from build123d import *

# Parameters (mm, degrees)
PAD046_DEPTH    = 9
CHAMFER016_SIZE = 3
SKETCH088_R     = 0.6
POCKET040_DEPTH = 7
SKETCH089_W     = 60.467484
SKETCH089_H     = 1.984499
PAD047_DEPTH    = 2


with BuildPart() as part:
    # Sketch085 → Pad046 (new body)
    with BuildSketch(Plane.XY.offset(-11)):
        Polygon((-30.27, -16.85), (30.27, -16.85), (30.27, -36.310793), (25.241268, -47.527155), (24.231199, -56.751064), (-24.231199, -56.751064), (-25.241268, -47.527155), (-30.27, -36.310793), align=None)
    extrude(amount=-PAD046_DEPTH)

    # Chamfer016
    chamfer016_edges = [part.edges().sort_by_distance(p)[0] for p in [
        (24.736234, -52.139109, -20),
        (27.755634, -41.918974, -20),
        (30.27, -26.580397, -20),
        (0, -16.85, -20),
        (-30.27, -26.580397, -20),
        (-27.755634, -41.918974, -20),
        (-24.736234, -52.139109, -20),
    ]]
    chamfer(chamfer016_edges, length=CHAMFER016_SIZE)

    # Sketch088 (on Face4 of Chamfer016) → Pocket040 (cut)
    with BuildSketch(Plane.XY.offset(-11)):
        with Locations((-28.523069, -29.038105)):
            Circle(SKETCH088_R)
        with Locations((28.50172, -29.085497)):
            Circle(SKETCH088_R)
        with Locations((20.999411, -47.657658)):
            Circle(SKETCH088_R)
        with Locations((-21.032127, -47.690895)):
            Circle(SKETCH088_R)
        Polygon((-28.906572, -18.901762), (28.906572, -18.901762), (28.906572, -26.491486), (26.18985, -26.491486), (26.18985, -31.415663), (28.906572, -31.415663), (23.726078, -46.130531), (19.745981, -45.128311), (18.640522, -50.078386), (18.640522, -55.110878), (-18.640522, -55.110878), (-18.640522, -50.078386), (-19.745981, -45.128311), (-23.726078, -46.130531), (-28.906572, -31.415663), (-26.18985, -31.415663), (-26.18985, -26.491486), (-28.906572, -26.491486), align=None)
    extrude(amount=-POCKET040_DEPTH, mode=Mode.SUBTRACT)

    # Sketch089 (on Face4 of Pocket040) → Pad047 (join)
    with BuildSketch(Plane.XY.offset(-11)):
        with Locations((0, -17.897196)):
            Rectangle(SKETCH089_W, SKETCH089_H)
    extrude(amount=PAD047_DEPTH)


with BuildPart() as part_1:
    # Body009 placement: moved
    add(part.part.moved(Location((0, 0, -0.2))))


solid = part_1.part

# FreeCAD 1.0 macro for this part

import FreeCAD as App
import Part
import Sketcher

V = App.Vector
Q = App.Units.Quantity


def edges_at(feature, points):
    """Names of the edges that pass closest to the given points."""
    edges = feature.Shape.Edges
    near = lambda p: min(range(len(edges)), key=lambda i: edges[i].distToShape(Part.Vertex(*p))[0])
    return sorted({f"Edge{near(p) + 1}" for p in points})


def add_polygon(sketch, points):
    """Adds a closed chain of lines whose ends are joined by coincident constraints."""
    first, n = sketch.GeometryCount, len(points)
    for a, b in zip(points, points[1:] + points[:1]):
        sketch.addGeometry(Part.LineSegment(App.Vector(*a, 0), App.Vector(*b, 0)), False)
    for i in range(n):
        sketch.addConstraint(Sketcher.Constraint("Coincident", first + i, 2, first + (i + 1) % n, 1))

doc = App.newDocument("Part")
body = doc.addObject("PartDesign::Body", "Body")

sketch1 = body.newObject("Sketcher::SketchObject", "Sketch")
sketch1.AttachmentSupport = (doc.getObject("XY_Plane"), [""])
sketch1.MapMode = "FlatFace"
sketch1.AttachmentOffset = App.Placement(V(0, 0, -11), App.Rotation())
add_polygon(sketch1, [(30, -17), (-30, -17), (-30, -36), (-25, -48), (-24, -57), (24, -57), (25, -48), (30, -36)])
sketch1.addConstraint(Sketcher.Constraint("Horizontal", 0))
sketch1.addConstraint(Sketcher.Constraint("Vertical", 1))
sketch1.addConstraint(Sketcher.Constraint("Horizontal", 4))
sketch1.addConstraint(Sketcher.Constraint("Vertical", 7))
sketch1.addConstraint(Sketcher.Constraint("Symmetric", 2, 2, 5, 2, -2))
sketch1.addConstraint(Sketcher.Constraint("Symmetric", 1, 2, 6, 2, -2))
sketch1.addConstraint(Sketcher.Constraint("Equal", 3, 5))
sketch1.addConstraint(Sketcher.Constraint("DistanceX", 0, 2, 0, 1, Q("60.54 mm")))
sketch1.addConstraint(Sketcher.Constraint("DistanceY", 0, 2, -1, 1, Q("16.85 mm")))
sketch1.addConstraint(Sketcher.Constraint("DistanceX", 3, 2, -1, 1, Q("24.231199 mm")))
sketch1.addConstraint(Sketcher.Constraint("Distance", 3, Q("9.279048 mm")))
sketch1.addConstraint(Sketcher.Constraint("DistanceY", 1, 2, 1, 1, Q("19.460793 mm")))
sketch1.addConstraint(Sketcher.Constraint("DistanceX", 2, 2, -1, 1, Q("25.241268 mm")))
sketch1.addConstraint(Sketcher.Constraint("DistanceY", 3, 2, 1, 2, Q("20.440271 mm")))
pad1 = body.newObject("PartDesign::Pad", "Pad")
pad1.Profile = sketch1
pad1.Length = 9
pad1.Reversed = True
doc.recompute()

chamfer = body.newObject("PartDesign::Chamfer", "Chamfer")
chamfer.Base = (pad1, edges_at(pad1, [
    (24.736, -52.139, -20),
    (27.756, -41.919, -20),
    (30.27, -26.58, -20),
    (0, -16.85, -20),
    (-30.27, -26.58, -20),
    (-27.756, -41.919, -20),
    (-24.736, -52.139, -20),
]))
chamfer.Size = 3

sketch2 = body.newObject("Sketcher::SketchObject", "Sketch001")
sketch2.AttachmentSupport = (doc.getObject("XY_Plane"), [""])
sketch2.MapMode = "FlatFace"
sketch2.AttachmentOffset = App.Placement(V(0, 0, -11), App.Rotation())
sketch2.addGeometry(Part.Circle(V(-28.5, -29, 0), V(0, 0, 1), 0.6), False)
sketch2.addGeometry(Part.Circle(V(28.5, -29.1, 0), V(0, 0, 1), 0.6), False)
sketch2.addGeometry(Part.Circle(V(21, -47.7, 0), V(0, 0, 1), 0.6), False)
sketch2.addGeometry(Part.Circle(V(-21, -47.7, 0), V(0, 0, 1), 0.6), False)
add_polygon(sketch2, [(28.9, -18.9), (-28.9, -18.9), (-28.9, -26.5), (-26.2, -26.5), (-26.2, -31.4), (-28.9, -31.4), (-23.7, -46.1), (-19.7, -45.1), (-18.6, -50.1), (-18.6, -55.1), (18.6, -55.1), (18.6, -50.1), (19.7, -45.1), (23.7, -46.1), (28.9, -31.4), (26.2, -31.4), (26.2, -26.5), (28.9, -26.5)])
sketch2.addConstraint(Sketcher.Constraint("Horizontal", 4))
sketch2.addConstraint(Sketcher.Constraint("Vertical", 5))
sketch2.addConstraint(Sketcher.Constraint("Horizontal", 6))
sketch2.addConstraint(Sketcher.Constraint("Vertical", 7))
sketch2.addConstraint(Sketcher.Constraint("Horizontal", 8))
sketch2.addConstraint(Sketcher.Constraint("Vertical", 12))
sketch2.addConstraint(Sketcher.Constraint("Horizontal", 13))
sketch2.addConstraint(Sketcher.Constraint("Vertical", 14))
sketch2.addConstraint(Sketcher.Constraint("Horizontal", 18))
sketch2.addConstraint(Sketcher.Constraint("Vertical", 19))
sketch2.addConstraint(Sketcher.Constraint("Horizontal", 20))
sketch2.addConstraint(Sketcher.Constraint("Vertical", 21))
sketch2.addConstraint(Sketcher.Constraint("Equal", 0, 1))
sketch2.addConstraint(Sketcher.Constraint("Equal", 1, 2))
sketch2.addConstraint(Sketcher.Constraint("Equal", 2, 3))
sketch2.addConstraint(Sketcher.Constraint("Symmetric", 11, 2, 14, 2, -2))
sketch2.addConstraint(Sketcher.Constraint("Symmetric", 10, 2, 15, 2, -2))
sketch2.addConstraint(Sketcher.Constraint("Symmetric", 9, 2, 16, 2, -2))
sketch2.addConstraint(Sketcher.Constraint("Symmetric", 8, 2, 17, 2, -2))
sketch2.addConstraint(Sketcher.Constraint("Symmetric", 6, 2, 19, 2, -2))
sketch2.addConstraint(Sketcher.Constraint("Vertical", 5, 2, 8, 2))
sketch2.addConstraint(Sketcher.Constraint("Vertical", 17, 2, 20, 2))
sketch2.addConstraint(Sketcher.Constraint("Diameter", 0, Q("1.2 mm")))
sketch2.addConstraint(Sketcher.Constraint("DistanceY", 12, 2, 12, 1, Q("5.032492 mm")))
sketch2.addConstraint(Sketcher.Constraint("DistanceY", 7, 2, 4, 2, Q("12.513901 mm")))
sketch2.addConstraint(Sketcher.Constraint("Distance", 10, Q("4.104341 mm")))
sketch2.addConstraint(Sketcher.Constraint("Distance", 11, Q("5.07201 mm")))
sketch2.addConstraint(Sketcher.Constraint("DistanceX", 4, 2, 4, 1, Q("57.813144 mm")))
sketch2.addConstraint(Sketcher.Constraint("DistanceX", 6, 1, 6, 2, Q("2.716722 mm")))
sketch2.addConstraint(Sketcher.Constraint("DistanceX", 13, 1, 13, 2, Q("37.281044 mm")))
sketch2.addConstraint(Sketcher.Constraint("DistanceY", 5, 2, 5, 1, Q("7.589724 mm")))
sketch2.addConstraint(Sketcher.Constraint("DistanceX", 0, 3, -1, 1, Q("28.523069 mm")))
sketch2.addConstraint(Sketcher.Constraint("DistanceX", -1, 1, 1, 3, Q("28.50172 mm")))
sketch2.addConstraint(Sketcher.Constraint("DistanceX", -1, 1, 2, 3, Q("20.999411 mm")))
sketch2.addConstraint(Sketcher.Constraint("DistanceX", 9, 2, -1, 1, Q("23.726078 mm")))
sketch2.addConstraint(Sketcher.Constraint("DistanceY", 9, 2, -1, 1, Q("46.130531 mm")))
sketch2.addConstraint(Sketcher.Constraint("DistanceX", 10, 2, -1, 1, Q("19.745981 mm")))
sketch2.addConstraint(Sketcher.Constraint("DistanceY", 1, 3, 0, 3, Q("0.047392 mm")))
sketch2.addConstraint(Sketcher.Constraint("DistanceY", 2, 3, 1, 3, Q("18.572161 mm")))
sketch2.addConstraint(Sketcher.Constraint("DistanceY", 3, 3, 0, 3, Q("18.65279 mm")))
sketch2.addConstraint(Sketcher.Constraint("DistanceY", 0, 3, 5, 2, Q("2.546619 mm")))
sketch2.addConstraint(Sketcher.Constraint("DistanceX", 9, 2, 3, 3, Q("2.693951 mm")))
sketch2.addConstraint(Sketcher.Constraint("DistanceY", 11, 2, 3, 3, Q("2.387491 mm")))
pocket1 = body.newObject("PartDesign::Pocket", "Pocket")
pocket1.Profile = sketch2
pocket1.Length = 7

sketch3 = body.newObject("Sketcher::SketchObject", "Sketch002")
sketch3.AttachmentSupport = (doc.getObject("XY_Plane"), [""])
sketch3.MapMode = "FlatFace"
sketch3.AttachmentOffset = App.Placement(V(0, 0, -11), App.Rotation())
add_polygon(sketch3, [(-30.2, -16.9), (-30.2, -18.9), (30.2, -18.9), (30.2, -16.9)])
sketch3.addConstraint(Sketcher.Constraint("Vertical", 0))
sketch3.addConstraint(Sketcher.Constraint("Horizontal", 1))
sketch3.addConstraint(Sketcher.Constraint("Vertical", 2))
sketch3.addConstraint(Sketcher.Constraint("Horizontal", 3))
sketch3.addConstraint(Sketcher.Constraint("DistanceY", 0, 2, 0, 1, Q("1.984499 mm")))
sketch3.addConstraint(Sketcher.Constraint("DistanceX", 1, 1, 1, 2, Q("60.467484 mm")))
sketch3.addConstraint(Sketcher.Constraint("DistanceX", 0, 2, -1, 1, Q("30.233742 mm")))
sketch3.addConstraint(Sketcher.Constraint("DistanceY", 0, 2, -1, 1, Q("18.889446 mm")))
pad2 = body.newObject("PartDesign::Pad", "Pad001")
pad2.Profile = sketch3
pad2.Length = 2
body2 = doc.addObject("PartDesign::Body", "Body001")
doc.recompute()

body.Placement = App.Placement(V(0, 0, -0.2), App.Rotation(V(0, 0, 1), 0))
boolean = body2.newObject("PartDesign::Boolean", "Boolean")
boolean.Type = "Fuse"
boolean.addObjects([body])

doc.recompute()
